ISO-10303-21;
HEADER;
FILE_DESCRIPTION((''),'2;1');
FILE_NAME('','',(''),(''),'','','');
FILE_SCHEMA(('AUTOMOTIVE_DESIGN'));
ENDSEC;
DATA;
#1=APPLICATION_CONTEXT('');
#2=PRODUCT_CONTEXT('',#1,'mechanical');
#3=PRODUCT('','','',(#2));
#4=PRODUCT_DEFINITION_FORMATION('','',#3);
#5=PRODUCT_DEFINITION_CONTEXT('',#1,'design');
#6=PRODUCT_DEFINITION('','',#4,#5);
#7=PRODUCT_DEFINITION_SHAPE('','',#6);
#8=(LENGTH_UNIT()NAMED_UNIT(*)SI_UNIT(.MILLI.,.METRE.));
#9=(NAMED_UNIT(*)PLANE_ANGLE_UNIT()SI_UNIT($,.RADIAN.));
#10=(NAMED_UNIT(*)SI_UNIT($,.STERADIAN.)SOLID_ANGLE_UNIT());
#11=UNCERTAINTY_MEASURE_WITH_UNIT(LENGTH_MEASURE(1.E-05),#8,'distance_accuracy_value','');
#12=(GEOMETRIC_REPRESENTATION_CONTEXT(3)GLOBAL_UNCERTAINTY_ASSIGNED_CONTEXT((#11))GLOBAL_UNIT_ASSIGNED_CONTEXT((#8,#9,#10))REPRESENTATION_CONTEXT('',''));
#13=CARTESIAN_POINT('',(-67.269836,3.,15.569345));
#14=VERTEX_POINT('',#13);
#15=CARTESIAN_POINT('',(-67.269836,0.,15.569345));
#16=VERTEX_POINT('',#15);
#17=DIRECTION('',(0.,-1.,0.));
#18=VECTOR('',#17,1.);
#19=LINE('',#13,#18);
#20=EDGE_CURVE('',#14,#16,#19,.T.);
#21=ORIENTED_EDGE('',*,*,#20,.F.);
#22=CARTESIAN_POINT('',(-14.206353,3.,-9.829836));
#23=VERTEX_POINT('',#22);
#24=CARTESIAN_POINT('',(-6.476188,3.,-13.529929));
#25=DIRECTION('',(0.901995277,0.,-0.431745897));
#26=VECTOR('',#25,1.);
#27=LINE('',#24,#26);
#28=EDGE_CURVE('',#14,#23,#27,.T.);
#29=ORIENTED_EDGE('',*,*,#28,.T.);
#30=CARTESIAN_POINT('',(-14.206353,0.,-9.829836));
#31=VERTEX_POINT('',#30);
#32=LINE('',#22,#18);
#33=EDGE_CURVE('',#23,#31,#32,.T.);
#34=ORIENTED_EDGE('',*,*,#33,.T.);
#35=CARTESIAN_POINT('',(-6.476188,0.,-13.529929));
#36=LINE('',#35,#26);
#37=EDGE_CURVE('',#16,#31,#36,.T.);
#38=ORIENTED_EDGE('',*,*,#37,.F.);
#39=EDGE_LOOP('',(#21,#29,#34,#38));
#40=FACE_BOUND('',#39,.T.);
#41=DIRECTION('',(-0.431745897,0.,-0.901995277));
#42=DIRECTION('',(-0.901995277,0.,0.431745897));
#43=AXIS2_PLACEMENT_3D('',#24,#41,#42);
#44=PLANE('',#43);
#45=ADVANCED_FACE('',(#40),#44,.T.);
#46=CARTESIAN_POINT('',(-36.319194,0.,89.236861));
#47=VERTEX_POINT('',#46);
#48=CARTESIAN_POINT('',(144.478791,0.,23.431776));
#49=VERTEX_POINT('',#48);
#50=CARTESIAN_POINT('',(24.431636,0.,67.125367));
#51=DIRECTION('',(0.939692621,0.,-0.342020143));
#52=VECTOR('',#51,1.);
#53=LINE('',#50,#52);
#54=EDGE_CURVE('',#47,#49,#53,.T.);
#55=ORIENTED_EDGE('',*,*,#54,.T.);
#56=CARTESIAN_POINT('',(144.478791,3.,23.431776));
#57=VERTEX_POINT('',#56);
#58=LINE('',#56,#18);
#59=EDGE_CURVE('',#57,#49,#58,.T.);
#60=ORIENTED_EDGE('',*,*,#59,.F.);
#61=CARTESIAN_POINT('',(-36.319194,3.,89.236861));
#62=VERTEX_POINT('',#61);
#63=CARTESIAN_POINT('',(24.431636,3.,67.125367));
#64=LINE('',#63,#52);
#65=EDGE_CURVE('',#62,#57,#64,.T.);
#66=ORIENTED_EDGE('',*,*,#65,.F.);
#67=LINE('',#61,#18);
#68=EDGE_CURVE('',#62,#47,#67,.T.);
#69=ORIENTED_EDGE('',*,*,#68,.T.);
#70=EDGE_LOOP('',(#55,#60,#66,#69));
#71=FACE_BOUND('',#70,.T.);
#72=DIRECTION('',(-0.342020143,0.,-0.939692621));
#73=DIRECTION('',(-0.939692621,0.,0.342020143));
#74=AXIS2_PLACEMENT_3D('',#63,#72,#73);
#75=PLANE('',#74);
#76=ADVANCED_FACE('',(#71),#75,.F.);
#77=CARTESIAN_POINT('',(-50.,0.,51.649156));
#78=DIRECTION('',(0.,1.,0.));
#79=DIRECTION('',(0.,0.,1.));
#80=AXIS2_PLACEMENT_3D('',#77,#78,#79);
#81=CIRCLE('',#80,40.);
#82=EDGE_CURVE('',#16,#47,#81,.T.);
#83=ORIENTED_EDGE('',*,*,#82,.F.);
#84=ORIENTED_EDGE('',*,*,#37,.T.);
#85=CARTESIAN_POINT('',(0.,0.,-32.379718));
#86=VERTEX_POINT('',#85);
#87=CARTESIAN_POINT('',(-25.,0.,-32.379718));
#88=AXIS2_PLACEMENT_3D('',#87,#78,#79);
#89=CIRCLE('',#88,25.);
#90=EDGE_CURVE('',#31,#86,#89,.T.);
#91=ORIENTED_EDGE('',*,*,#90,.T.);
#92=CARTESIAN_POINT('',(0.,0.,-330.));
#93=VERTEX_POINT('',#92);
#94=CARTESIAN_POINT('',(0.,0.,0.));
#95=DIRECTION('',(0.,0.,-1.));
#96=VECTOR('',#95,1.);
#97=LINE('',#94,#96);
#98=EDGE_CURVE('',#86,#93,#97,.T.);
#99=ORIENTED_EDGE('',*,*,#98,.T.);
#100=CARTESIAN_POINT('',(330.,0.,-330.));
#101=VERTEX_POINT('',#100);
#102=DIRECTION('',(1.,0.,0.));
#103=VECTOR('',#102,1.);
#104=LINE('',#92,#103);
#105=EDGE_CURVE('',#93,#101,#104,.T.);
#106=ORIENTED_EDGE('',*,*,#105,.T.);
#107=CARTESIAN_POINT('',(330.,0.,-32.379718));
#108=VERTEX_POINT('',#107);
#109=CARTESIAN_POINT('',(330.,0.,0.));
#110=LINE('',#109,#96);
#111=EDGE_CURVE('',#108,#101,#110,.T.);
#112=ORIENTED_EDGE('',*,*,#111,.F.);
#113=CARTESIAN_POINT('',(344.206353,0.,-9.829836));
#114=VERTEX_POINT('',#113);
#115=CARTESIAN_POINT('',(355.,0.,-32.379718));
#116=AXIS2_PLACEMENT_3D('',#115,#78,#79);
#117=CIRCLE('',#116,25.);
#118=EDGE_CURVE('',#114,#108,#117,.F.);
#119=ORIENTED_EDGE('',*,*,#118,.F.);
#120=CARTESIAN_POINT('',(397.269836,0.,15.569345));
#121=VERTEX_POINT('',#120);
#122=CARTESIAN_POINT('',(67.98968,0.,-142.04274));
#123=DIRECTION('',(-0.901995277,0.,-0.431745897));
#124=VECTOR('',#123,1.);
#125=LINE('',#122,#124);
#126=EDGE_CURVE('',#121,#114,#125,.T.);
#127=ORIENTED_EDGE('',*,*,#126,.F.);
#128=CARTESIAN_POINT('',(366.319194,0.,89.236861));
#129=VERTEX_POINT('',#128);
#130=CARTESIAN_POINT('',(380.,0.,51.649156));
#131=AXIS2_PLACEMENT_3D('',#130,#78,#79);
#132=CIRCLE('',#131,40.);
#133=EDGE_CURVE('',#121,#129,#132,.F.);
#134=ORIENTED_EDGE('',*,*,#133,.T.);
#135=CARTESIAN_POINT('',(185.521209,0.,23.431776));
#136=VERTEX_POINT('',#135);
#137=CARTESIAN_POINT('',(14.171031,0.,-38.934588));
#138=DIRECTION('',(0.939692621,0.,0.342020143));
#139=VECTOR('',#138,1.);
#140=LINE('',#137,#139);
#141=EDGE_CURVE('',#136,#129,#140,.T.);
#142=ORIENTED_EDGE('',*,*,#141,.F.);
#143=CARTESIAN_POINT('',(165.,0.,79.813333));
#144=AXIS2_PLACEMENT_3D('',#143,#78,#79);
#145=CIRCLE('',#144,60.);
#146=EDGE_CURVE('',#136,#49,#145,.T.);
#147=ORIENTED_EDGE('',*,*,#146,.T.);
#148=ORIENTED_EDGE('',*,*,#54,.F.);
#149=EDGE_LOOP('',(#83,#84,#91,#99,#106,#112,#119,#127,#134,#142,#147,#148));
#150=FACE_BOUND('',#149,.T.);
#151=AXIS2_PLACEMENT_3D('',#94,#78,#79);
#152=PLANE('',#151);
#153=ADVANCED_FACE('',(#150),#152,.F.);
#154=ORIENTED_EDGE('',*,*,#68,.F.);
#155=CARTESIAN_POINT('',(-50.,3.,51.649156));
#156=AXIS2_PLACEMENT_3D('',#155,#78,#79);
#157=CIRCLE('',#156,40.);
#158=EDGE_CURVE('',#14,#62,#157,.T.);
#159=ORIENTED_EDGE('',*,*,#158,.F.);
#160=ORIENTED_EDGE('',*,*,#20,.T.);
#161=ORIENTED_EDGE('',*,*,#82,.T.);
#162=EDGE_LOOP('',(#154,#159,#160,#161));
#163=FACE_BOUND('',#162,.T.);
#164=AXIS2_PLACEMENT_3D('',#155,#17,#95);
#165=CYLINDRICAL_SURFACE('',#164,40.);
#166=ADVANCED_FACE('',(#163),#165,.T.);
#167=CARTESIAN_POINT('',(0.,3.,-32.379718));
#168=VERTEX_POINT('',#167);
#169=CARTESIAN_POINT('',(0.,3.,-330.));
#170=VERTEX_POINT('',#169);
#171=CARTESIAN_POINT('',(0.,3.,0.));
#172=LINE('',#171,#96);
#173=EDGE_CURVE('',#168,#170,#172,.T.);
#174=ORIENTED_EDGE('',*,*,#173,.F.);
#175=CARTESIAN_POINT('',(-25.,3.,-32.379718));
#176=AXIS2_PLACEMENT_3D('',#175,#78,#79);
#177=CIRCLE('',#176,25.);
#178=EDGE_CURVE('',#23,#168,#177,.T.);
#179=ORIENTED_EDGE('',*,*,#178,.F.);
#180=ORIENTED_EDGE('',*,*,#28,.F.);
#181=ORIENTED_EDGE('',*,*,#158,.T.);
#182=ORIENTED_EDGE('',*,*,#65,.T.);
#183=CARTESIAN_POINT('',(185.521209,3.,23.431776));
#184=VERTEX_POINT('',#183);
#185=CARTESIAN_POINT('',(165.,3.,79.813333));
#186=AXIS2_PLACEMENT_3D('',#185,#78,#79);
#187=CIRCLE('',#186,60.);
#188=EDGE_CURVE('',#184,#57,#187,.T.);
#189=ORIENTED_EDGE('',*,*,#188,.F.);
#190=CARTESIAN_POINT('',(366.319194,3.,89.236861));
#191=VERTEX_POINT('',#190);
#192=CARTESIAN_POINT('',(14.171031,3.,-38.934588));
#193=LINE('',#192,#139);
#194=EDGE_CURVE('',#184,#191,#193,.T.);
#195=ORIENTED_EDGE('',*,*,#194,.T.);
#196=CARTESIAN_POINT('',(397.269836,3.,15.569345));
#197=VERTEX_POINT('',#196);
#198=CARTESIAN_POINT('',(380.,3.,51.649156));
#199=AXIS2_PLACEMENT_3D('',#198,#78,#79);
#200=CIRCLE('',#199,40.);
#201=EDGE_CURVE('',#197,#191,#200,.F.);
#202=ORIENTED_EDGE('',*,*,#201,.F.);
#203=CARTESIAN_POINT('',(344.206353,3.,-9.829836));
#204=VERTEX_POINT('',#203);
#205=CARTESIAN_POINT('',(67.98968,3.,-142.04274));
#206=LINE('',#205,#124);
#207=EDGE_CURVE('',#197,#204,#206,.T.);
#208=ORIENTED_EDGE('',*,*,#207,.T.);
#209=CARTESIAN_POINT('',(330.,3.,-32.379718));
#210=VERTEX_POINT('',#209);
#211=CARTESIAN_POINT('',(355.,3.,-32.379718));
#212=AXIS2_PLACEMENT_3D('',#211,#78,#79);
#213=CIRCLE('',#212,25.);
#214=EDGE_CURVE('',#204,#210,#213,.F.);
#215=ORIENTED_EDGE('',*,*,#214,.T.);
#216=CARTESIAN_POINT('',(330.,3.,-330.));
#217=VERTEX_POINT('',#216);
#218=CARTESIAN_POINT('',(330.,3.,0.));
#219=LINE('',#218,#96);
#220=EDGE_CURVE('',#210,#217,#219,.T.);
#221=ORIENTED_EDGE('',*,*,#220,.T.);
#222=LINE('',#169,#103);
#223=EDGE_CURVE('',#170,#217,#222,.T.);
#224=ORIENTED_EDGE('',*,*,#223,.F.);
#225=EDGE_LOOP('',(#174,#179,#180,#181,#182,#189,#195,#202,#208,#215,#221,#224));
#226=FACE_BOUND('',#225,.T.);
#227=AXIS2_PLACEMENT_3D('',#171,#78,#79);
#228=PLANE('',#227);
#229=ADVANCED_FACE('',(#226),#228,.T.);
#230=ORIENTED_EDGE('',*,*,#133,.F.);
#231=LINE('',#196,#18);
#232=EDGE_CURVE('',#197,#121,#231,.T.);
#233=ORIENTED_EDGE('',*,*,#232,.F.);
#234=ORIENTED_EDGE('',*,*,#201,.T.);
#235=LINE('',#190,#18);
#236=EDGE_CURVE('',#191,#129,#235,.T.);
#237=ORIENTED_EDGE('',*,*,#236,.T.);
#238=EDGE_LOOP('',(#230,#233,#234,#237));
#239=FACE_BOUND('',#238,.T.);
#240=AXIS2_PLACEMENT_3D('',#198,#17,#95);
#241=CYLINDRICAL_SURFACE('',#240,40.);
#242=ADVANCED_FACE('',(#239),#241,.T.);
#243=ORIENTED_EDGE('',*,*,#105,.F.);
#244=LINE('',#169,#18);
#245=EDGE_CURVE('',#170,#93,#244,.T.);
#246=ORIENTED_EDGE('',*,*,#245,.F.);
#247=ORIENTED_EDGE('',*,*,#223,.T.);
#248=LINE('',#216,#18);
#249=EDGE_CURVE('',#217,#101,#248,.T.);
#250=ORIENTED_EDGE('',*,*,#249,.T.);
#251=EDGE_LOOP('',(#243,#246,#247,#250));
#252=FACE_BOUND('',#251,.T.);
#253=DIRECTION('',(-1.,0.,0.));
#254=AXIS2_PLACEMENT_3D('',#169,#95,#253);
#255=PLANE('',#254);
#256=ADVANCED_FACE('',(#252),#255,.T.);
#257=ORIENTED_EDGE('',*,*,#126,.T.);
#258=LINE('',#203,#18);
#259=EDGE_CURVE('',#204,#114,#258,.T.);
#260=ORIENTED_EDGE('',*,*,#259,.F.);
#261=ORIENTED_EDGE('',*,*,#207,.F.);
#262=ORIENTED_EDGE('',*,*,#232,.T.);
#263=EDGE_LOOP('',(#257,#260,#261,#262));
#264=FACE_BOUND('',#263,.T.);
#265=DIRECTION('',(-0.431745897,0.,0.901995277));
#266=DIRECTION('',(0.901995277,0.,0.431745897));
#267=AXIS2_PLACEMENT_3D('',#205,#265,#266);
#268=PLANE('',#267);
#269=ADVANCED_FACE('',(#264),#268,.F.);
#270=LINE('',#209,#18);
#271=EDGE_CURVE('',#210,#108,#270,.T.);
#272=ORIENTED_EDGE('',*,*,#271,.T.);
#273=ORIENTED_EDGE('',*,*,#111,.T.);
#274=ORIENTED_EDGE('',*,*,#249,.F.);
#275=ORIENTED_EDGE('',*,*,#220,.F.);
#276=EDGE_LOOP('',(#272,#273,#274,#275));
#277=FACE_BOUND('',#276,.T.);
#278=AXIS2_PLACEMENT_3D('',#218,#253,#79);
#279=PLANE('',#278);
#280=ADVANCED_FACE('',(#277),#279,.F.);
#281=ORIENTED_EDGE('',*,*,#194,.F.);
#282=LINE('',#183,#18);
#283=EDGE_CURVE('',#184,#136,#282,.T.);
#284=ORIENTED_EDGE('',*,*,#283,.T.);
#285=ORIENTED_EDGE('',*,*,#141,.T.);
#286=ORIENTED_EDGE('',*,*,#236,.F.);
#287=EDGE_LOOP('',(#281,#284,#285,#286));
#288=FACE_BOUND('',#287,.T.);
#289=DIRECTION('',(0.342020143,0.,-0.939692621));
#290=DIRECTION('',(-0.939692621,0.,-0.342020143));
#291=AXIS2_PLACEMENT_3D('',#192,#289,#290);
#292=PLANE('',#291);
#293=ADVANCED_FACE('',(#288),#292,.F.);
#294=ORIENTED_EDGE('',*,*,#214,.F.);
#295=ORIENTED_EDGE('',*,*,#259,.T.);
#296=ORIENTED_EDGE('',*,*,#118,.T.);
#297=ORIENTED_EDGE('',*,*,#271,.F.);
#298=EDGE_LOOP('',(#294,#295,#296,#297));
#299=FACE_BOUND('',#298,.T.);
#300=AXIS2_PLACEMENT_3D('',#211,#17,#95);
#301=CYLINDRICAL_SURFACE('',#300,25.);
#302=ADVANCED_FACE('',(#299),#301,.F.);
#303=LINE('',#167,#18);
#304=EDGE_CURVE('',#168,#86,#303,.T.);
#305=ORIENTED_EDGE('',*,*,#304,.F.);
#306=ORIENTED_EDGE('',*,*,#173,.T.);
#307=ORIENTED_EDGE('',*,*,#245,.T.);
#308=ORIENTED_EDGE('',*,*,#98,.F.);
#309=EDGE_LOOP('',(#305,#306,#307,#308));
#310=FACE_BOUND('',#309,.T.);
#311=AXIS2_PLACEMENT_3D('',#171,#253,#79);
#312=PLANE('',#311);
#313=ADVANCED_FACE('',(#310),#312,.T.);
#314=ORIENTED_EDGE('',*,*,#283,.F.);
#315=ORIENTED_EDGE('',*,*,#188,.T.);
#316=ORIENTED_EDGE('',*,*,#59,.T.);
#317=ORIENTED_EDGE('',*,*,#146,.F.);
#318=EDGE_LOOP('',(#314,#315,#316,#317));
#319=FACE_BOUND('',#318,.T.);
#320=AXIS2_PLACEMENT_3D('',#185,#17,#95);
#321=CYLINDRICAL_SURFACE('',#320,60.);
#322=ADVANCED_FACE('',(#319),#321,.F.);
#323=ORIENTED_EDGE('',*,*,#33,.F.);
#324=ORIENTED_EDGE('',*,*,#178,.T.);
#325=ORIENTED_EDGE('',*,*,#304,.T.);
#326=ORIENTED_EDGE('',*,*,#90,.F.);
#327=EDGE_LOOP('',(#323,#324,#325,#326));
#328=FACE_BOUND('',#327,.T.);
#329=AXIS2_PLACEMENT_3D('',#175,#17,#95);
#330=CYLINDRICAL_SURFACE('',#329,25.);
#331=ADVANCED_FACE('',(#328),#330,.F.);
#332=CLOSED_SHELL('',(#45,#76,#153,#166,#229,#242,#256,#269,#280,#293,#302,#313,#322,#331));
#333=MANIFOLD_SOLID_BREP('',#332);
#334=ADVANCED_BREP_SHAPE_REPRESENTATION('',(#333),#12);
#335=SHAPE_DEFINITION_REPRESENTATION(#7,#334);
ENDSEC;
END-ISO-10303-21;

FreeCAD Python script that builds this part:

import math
import FreeCAD as App
import Part
import Sketcher

V = App.Vector
Q = App.Units.Quantity

doc = App.newDocument("Part")
body = doc.addObject("PartDesign::Body", "Body")

sketch1 = body.newObject("Sketcher::SketchObject", "Sketch")
sketch1.AttachmentSupport = (doc.getObject("XZ_Plane"), [""])
sketch1.MapMode = "FlatFace"
sketch1.addGeometry([
    Part.LineSegment(V(-36.319194, 89.236861, 0), V(144.47879, 23.431776, 0)),
    Part.ArcOfCircle(Part.Circle(V(165, 79.813333, 0), V(0, 0, 1), 60), math.radians(-110.000001), math.radians(-69.999999)),
    Part.LineSegment(V(185.52121, 23.431776, 0), V(366.319192, 89.23686, 0)),
    Part.ArcOfCircle(Part.Circle(V(380, 51.649156, 0), V(0, 0, 1), 40), math.radians(-64.421586), math.radians(110.000003)),
    Part.LineSegment(V(397.269838, 15.569346, 0), V(344.206351, -9.829836, 0)),
    Part.ArcOfCircle(Part.Circle(V(355, -32.379718, 0), V(0, 0, 1), 25), math.radians(115.578413), math.radians(180)),
    Part.LineSegment(V(330, -32.379718, 0), V(330, -330, 0)),
    Part.LineSegment(V(330, -330, 0), V(0, -330, 0)),
    Part.LineSegment(V(0, -330, 0), V(0, -32.379718, 0)),
    Part.ArcOfCircle(Part.Circle(V(-25, -32.379718, 0), V(0, 0, 1), 25), math.radians(0), math.radians(64.421589)),
    Part.LineSegment(V(-14.206352, -9.829836, 0), V(-67.269836, 15.569345, 0)),
    Part.ArcOfCircle(Part.Circle(V(-50, 51.649156, 0), V(0, 0, 1), 40), math.radians(70), math.radians(244.42159)),
], False)
sketch1.addConstraint([
    Sketcher.Constraint("Tangent", 0, 2, 1, 1),
    Sketcher.Constraint("Tangent", 1, 2, 2, 1),
    Sketcher.Constraint("Tangent", 2, 2, 3, 2),
    Sketcher.Constraint("Tangent", 3, 1, 4, 1),
    Sketcher.Constraint("Tangent", 4, 2, 5, 1),
    Sketcher.Constraint("Tangent", 5, 2, 6, 1),
    Sketcher.Constraint("Coincident", 6, 2, 7, 1),
    Sketcher.Constraint("Coincident", 7, 2, 8, 1),
    Sketcher.Constraint("Tangent", 8, 2, 9, 1),
    Sketcher.Constraint("Tangent", 9, 2, 10, 1),
    Sketcher.Constraint("Tangent", 10, 2, 11, 2),
    Sketcher.Constraint("Tangent", 11, 1, 0, 1),
    Sketcher.Constraint("Vertical", 6),
    Sketcher.Constraint("Horizontal", 7),
    Sketcher.Constraint("Vertical", 8),
    Sketcher.Constraint("Equal", 5, 9),
    Sketcher.Constraint("Equal", 3, 11),
    Sketcher.Constraint("PointOnObject", 7, 2, -2),
    Sketcher.Constraint("Horizontal", 5, 3, 9, 3),
    Sketcher.Constraint("Horizontal", 3, 3, 11, 3),
    Sketcher.Constraint("Horizontal", 0, 2, 1, 2),
    Sketcher.Constraint("Horizontal", 4, 2, 9, 2),
    Sketcher.Constraint("Radius", 1, Q("60 mm")),
    Sketcher.Constraint("Radius", 3, Q("40 mm")),
    Sketcher.Constraint("Radius", 5, Q("25 mm")),
    Sketcher.Constraint("DistanceX", 7, 2, 7, 1, Q("330 mm")),
    Sketcher.Constraint("Angle", 0, Q("-20 deg")),
    Sketcher.Constraint("DistanceX", -1, 1, 3, 3, Q("380 mm")),
    Sketcher.Constraint("DistanceY", 6, 2, -1, 1, Q("330 mm")),
    Sketcher.Constraint("DistanceY", 6, 2, 6, 1, Q("297.620282 mm")),
    Sketcher.Constraint("DistanceY", -1, 1, 2, 2, Q("89.23686 mm")),
])
pad1 = body.newObject("PartDesign::Pad", "Pad")
pad1.Profile = sketch1
pad1.Length = 3
pad1.Reversed = True

doc.recompute()
